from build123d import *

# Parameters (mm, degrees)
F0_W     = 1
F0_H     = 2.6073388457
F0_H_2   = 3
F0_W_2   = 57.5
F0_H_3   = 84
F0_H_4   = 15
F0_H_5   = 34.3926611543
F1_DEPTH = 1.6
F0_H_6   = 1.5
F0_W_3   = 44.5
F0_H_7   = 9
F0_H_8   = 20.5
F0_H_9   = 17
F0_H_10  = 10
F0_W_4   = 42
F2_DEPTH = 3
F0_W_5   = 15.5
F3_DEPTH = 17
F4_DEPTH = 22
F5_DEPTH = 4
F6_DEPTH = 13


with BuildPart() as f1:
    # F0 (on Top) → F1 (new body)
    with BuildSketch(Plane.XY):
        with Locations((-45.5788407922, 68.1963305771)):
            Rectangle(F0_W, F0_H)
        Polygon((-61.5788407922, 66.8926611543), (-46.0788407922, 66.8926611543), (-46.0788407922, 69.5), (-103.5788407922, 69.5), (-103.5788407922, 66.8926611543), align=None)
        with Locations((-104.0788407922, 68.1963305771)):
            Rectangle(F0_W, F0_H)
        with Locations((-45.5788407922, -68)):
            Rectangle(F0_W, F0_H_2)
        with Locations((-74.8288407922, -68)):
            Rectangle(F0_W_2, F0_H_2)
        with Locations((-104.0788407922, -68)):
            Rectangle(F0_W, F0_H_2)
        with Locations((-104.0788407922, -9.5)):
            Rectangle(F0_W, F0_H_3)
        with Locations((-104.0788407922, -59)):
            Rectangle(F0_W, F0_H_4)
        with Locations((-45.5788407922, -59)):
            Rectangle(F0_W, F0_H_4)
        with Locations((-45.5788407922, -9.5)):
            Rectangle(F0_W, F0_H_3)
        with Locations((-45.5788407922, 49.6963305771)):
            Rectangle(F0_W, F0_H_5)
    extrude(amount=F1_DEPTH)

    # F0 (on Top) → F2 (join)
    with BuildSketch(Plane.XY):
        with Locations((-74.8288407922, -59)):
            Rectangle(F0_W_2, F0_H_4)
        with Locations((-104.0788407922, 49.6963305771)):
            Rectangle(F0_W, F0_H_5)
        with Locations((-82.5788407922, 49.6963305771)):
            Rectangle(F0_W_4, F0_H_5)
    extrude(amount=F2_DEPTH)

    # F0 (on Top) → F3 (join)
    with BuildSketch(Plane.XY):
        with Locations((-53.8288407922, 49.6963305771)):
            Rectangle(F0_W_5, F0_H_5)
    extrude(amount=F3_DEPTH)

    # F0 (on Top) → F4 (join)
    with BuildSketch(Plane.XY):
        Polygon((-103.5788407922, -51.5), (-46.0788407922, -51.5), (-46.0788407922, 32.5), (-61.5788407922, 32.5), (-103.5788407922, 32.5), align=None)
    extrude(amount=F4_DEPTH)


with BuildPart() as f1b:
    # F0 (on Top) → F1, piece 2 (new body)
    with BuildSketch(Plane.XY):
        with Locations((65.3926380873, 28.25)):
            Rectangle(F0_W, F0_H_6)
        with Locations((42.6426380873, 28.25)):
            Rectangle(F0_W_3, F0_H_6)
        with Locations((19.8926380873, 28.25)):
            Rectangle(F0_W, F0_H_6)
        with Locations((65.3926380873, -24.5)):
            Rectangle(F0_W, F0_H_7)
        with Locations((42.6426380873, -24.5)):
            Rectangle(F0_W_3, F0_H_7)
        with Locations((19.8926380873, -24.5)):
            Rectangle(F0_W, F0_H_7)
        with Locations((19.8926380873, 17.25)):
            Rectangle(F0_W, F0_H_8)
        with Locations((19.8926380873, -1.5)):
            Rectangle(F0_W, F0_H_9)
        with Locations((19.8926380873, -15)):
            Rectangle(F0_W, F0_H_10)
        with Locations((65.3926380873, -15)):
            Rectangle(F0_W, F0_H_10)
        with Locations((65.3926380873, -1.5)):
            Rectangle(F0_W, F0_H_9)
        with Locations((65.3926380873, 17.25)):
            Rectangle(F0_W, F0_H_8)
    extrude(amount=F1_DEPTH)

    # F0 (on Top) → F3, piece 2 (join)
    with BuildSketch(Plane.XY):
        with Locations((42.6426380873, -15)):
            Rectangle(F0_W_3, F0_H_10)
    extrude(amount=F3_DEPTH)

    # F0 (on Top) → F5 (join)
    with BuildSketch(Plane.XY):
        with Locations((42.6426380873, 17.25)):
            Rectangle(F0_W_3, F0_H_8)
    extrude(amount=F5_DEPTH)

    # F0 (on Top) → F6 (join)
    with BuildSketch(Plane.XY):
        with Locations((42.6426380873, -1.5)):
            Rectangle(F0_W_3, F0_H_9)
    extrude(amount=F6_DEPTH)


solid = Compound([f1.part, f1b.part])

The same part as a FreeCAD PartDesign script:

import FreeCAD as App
import Part
import Sketcher


def add_polygon(sketch, points):
    """Adds a closed chain of lines whose ends are joined by coincident constraints."""
    first, n = sketch.GeometryCount, len(points)
    for a, b in zip(points, points[1:] + points[:1]):
        sketch.addGeometry(Part.LineSegment(App.Vector(*a, 0), App.Vector(*b, 0)), False)
    for i in range(n):
        sketch.addConstraint(Sketcher.Constraint("Coincident", first + i, 2, first + (i + 1) % n, 1))

doc = App.newDocument("Part")
params = doc.addObject("Spreadsheet::Sheet", "Params")
for row, (alias, value) in enumerate([
    ("sketch1_width", "1 mm"),
    ("sketch1_height", "139 mm"),
    ("sketch1_height2", "99 mm"),
    ("sketch1_height3", "102 mm"),
    ("sketch1_width2", "59.5 mm"),
    ("pad1_length", "1.6 mm"),
    ("sketch2_width", "43 mm"),
    ("sketch2_height", "15 mm"),
    ("sketch2_width2", "57.5 mm"),
    ("pad2_length", "3 mm"),
    ("sketch3_width", "15.5 mm"),
    ("pad3_length", "17 mm"),
    ("sketch4_height", "84 mm"),
    ("sketch4_width", "57.5 mm"),
    ("pad4_length", "22 mm"),
    ("sketch5_height", "58 mm"),
    ("sketch5_width", "46.5 mm"),
    ("sketch5_width2", "44.5 mm"),
    ("sketch5_height2", "47.5 mm"),
    ("pad5_length", "1.6 mm"),
    ("sketch6_height", "10 mm"),
    ("sketch6_width", "44.5 mm"),
    ("pad6_length", "17 mm"),
    ("sketch7_width", "44.5 mm"),
    ("sketch7_height", "20.5 mm"),
    ("pad7_length", "4 mm"),
    ("sketch8_height", "17 mm"),
    ("sketch8_width", "44.5 mm"),
    ("pad8_length", "13 mm"),
], start=1):
    params.set(f"A{row}", alias)
    params.set(f"B{row}", "=" + value)
    params.setAlias(f"B{row}", alias)

body = doc.addObject("PartDesign::Body", "Body")

sketch1 = body.newObject("Sketcher::SketchObject", "Sketch")
sketch1.AttachmentSupport = (doc.getObject("XY_Plane"), [""])
sketch1.MapMode = "FlatFace"
add_polygon(sketch1, [(-45.1, -69.5), (-45.1, 69.5), (-104.6, 69.5), (-104.6, 66.9), (-103.6, 66.9), (-46.1, 66.9), (-46.1, -66.5), (-103.6, -66.5), (-103.6, 32.5), (-104.6, 32.5), (-104.6, -69.5)])
sketch1.addConstraint([
    Sketcher.Constraint("Vertical", 0),
    Sketcher.Constraint("Horizontal", 1),
    Sketcher.Constraint("Vertical", 2),
    Sketcher.Constraint("Horizontal", 3),
    Sketcher.Constraint("Horizontal", 4),
    Sketcher.Constraint("Vertical", 5),
    Sketcher.Constraint("Horizontal", 6),
    Sketcher.Constraint("Vertical", 7),
    Sketcher.Constraint("Horizontal", 8),
    Sketcher.Constraint("Vertical", 9),
    Sketcher.Constraint("Horizontal", 10),
    Sketcher.Constraint("Symmetric", 1, 2, 9, 2, -1),
    Sketcher.Constraint("Vertical", 3, 2, 6, 2),
    Sketcher.Constraint("DistanceX", 3, 1, 3, 2, 1.0),
    Sketcher.Constraint("DistanceY", 0, 1, 0, 2, 139.0),
    Sketcher.Constraint("DistanceY", 7, 1, 7, 2, 99.0),
    Sketcher.Constraint("DistanceY", 9, 2, 9, 1, 102.0),
    Sketcher.Constraint("DistanceX", 1, 2, 1, 1, 59.5),
    Sketcher.Constraint("DistanceX", 4, 1, 4, 2, 57.5),
    Sketcher.Constraint("DistanceY", 2, 2, 2, 1, 2.607339),
    Sketcher.Constraint("DistanceX", 0, 2, -1, 1, 45.078841),
])
sketch1.setExpression("Constraints[24]", "Params.sketch1_width")
sketch1.setExpression("Constraints[25]", "Params.sketch1_height")
sketch1.setExpression("Constraints[26]", "Params.sketch1_height2")
sketch1.setExpression("Constraints[27]", "Params.sketch1_height3")
sketch1.setExpression("Constraints[28]", "Params.sketch1_width2")
pad1 = body.newObject("PartDesign::Pad", "Pad")
pad1.Profile = sketch1
pad1.setExpression("Length", "Params.pad1_length")

sketch2 = body.newObject("Sketcher::SketchObject", "Sketch001")
sketch2.AttachmentSupport = (doc.getObject("XY_Plane"), [""])
sketch2.MapMode = "FlatFace"
add_polygon(sketch2, [(-104, -52), (-104, -66), (-46, -66), (-46, -52)])
add_polygon(sketch2, [(-105, 67), (-105, 32), (-62, 32), (-62, 67)])
sketch2.addConstraint([
    Sketcher.Constraint("Vertical", 0),
    Sketcher.Constraint("Horizontal", 1),
    Sketcher.Constraint("Vertical", 2),
    Sketcher.Constraint("Horizontal", 3),
    Sketcher.Constraint("Vertical", 4),
    Sketcher.Constraint("Horizontal", 5),
    Sketcher.Constraint("Vertical", 6),
    Sketcher.Constraint("Horizontal", 7),
    Sketcher.Constraint("DistanceX", 5, 1, 5, 2, 43.0),
    Sketcher.Constraint("DistanceY", 0, 2, 0, 1, 15.0),
    Sketcher.Constraint("DistanceX", 1, 1, 1, 2, 57.5),
    Sketcher.Constraint("DistanceX", 4, 2, 3, 2, 1.0),
    Sketcher.Constraint("DistanceY", 3, 2, 4, 2, 84.0),
    Sketcher.Constraint("DistanceY", 0, 2, -1, 1, 66.5),
    Sketcher.Constraint("DistanceY", 4, 2, 4, 1, 34.392661),
    Sketcher.Constraint("DistanceX", 0, 2, -1, 1, 103.578841),
])
sketch2.setExpression("Constraints[16]", "Params.sketch2_width")
sketch2.setExpression("Constraints[17]", "Params.sketch2_height")
sketch2.setExpression("Constraints[18]", "Params.sketch2_width2")
pad2 = body.newObject("PartDesign::Pad", "Pad001")
pad2.Profile = sketch2
pad2.setExpression("Length", "Params.pad2_length")

sketch3 = body.newObject("Sketcher::SketchObject", "Sketch002")
sketch3.AttachmentSupport = (doc.getObject("XY_Plane"), [""])
sketch3.MapMode = "FlatFace"
add_polygon(sketch3, [(-62, 67), (-62, 32), (-46, 32), (-46, 67)])
sketch3.addConstraint([
    Sketcher.Constraint("Vertical", 0),
    Sketcher.Constraint("Horizontal", 1),
    Sketcher.Constraint("Vertical", 2),
    Sketcher.Constraint("Horizontal", 3),
    Sketcher.Constraint("DistanceX", 1, 1, 1, 2, 15.5),
    Sketcher.Constraint("DistanceY", -1, 1, 0, 2, 32.5),
    Sketcher.Constraint("DistanceY", 0, 2, 0, 1, 34.392661),
    Sketcher.Constraint("DistanceX", 0, 2, -1, 1, 61.578841),
])
sketch3.setExpression("Constraints[8]", "Params.sketch3_width")
pad3 = body.newObject("PartDesign::Pad", "Pad002")
pad3.Profile = sketch3
pad3.setExpression("Length", "Params.pad3_length")

sketch4 = body.newObject("Sketcher::SketchObject", "Sketch003")
sketch4.AttachmentSupport = (doc.getObject("XY_Plane"), [""])
sketch4.MapMode = "FlatFace"
add_polygon(sketch4, [(-104, -52), (-46, -52), (-46, 32), (-104, 32)])
sketch4.addConstraint([
    Sketcher.Constraint("Horizontal", 0),
    Sketcher.Constraint("Vertical", 1),
    Sketcher.Constraint("Horizontal", 2),
    Sketcher.Constraint("Vertical", 3),
    Sketcher.Constraint("DistanceY", 1, 1, 1, 2, 84.0),
    Sketcher.Constraint("DistanceX", 0, 1, 0, 2, 57.5),
    Sketcher.Constraint("DistanceY", 0, 2, -1, 1, 51.5),
    Sketcher.Constraint("DistanceX", 0, 2, -1, 1, 46.078841),
])
sketch4.setExpression("Constraints[8]", "Params.sketch4_height")
sketch4.setExpression("Constraints[9]", "Params.sketch4_width")
pad4 = body.newObject("PartDesign::Pad", "Pad003")
pad4.Profile = sketch4
pad4.setExpression("Length", "Params.pad4_length")
body2 = doc.addObject("PartDesign::Body", "Body001")

sketch5 = body2.newObject("Sketcher::SketchObject", "Sketch004")
sketch5.AttachmentSupport = (doc.getObject("XY_Plane001"), [""])
sketch5.MapMode = "FlatFace"
add_polygon(sketch5, [(66, 29), (19, 29), (19, -29), (66, -29)])
add_polygon(sketch5, [(65, -20), (20, -20), (20, 28), (65, 28)])
sketch5.addConstraint([
    Sketcher.Constraint("Horizontal", 0),
    Sketcher.Constraint("Vertical", 1),
    Sketcher.Constraint("Horizontal", 2),
    Sketcher.Constraint("Vertical", 3),
    Sketcher.Constraint("Horizontal", 4),
    Sketcher.Constraint("Vertical", 5),
    Sketcher.Constraint("Horizontal", 6),
    Sketcher.Constraint("Vertical", 7),
    Sketcher.Constraint("DistanceY", 1, 2, 1, 1, 58.0),
    Sketcher.Constraint("DistanceX", 0, 2, 0, 1, 46.5),
    Sketcher.Constraint("DistanceX", 4, 2, 4, 1, 44.5),
    Sketcher.Constraint("DistanceY", 5, 1, 5, 2, 47.5),
    Sketcher.Constraint("DistanceY", -1, 1, 0, 2, 29.0),
    Sketcher.Constraint("DistanceY", 4, 2, -1, 1, 20.0),
    Sketcher.Constraint("DistanceX", 1, 2, 4, 2, 1.0),
    Sketcher.Constraint("DistanceX", -1, 1, 0, 2, 19.392638),
])
sketch5.setExpression("Constraints[16]", "Params.sketch5_height")
sketch5.setExpression("Constraints[17]", "Params.sketch5_width")
sketch5.setExpression("Constraints[18]", "Params.sketch5_width2")
sketch5.setExpression("Constraints[19]", "Params.sketch5_height2")
pad5 = body2.newObject("PartDesign::Pad", "Pad004")
pad5.Profile = sketch5
pad5.setExpression("Length", "Params.pad5_length")

sketch6 = body2.newObject("Sketcher::SketchObject", "Sketch005")
sketch6.AttachmentSupport = (doc.getObject("XY_Plane001"), [""])
sketch6.MapMode = "FlatFace"
add_polygon(sketch6, [(20, -10), (20, -20), (65, -20), (65, -10)])
sketch6.addConstraint([
    Sketcher.Constraint("Vertical", 0),
    Sketcher.Constraint("Horizontal", 1),
    Sketcher.Constraint("Vertical", 2),
    Sketcher.Constraint("Horizontal", 3),
    Sketcher.Constraint("DistanceY", 0, 2, 0, 1, 10.0),
    Sketcher.Constraint("DistanceX", 1, 1, 1, 2, 44.5),
    Sketcher.Constraint("DistanceY", 0, 2, -1, 1, 20.0),
    Sketcher.Constraint("DistanceX", -1, 1, 0, 2, 20.392638),
])
sketch6.setExpression("Constraints[8]", "Params.sketch6_height")
sketch6.setExpression("Constraints[9]", "Params.sketch6_width")
pad6 = body2.newObject("PartDesign::Pad", "Pad005")
pad6.Profile = sketch6
pad6.setExpression("Length", "Params.pad6_length")

sketch7 = body2.newObject("Sketcher::SketchObject", "Sketch006")
sketch7.AttachmentSupport = (doc.getObject("XY_Plane001"), [""])
sketch7.MapMode = "FlatFace"
add_polygon(sketch7, [(20, 28), (20, 7), (65, 7), (65, 28)])
sketch7.addConstraint([
    Sketcher.Constraint("Vertical", 0),
    Sketcher.Constraint("Horizontal", 1),
    Sketcher.Constraint("Vertical", 2),
    Sketcher.Constraint("Horizontal", 3),
    Sketcher.Constraint("DistanceX", 1, 1, 1, 2, 44.5),
    Sketcher.Constraint("DistanceY", 0, 2, 0, 1, 20.5),
    Sketcher.Constraint("DistanceY", -1, 1, 0, 2, 7.0),
    Sketcher.Constraint("DistanceX", -1, 1, 0, 2, 20.392638),
])
sketch7.setExpression("Constraints[8]", "Params.sketch7_width")
sketch7.setExpression("Constraints[9]", "Params.sketch7_height")
pad7 = body2.newObject("PartDesign::Pad", "Pad006")
pad7.Profile = sketch7
pad7.setExpression("Length", "Params.pad7_length")

sketch8 = body2.newObject("Sketcher::SketchObject", "Sketch007")
sketch8.AttachmentSupport = (doc.getObject("XY_Plane001"), [""])
sketch8.MapMode = "FlatFace"
add_polygon(sketch8, [(20, 7), (20, -10), (65, -10), (65, 7)])
sketch8.addConstraint([
    Sketcher.Constraint("Vertical", 0),
    Sketcher.Constraint("Horizontal", 1),
    Sketcher.Constraint("Vertical", 2),
    Sketcher.Constraint("Horizontal", 3),
    Sketcher.Constraint("DistanceY", 0, 2, 0, 1, 17.0),
    Sketcher.Constraint("DistanceX", 1, 1, 1, 2, 44.5),
    Sketcher.Constraint("DistanceY", 0, 2, -1, 1, 10.0),
    Sketcher.Constraint("DistanceX", -1, 1, 0, 2, 20.392638),
])
sketch8.setExpression("Constraints[8]", "Params.sketch8_height")
sketch8.setExpression("Constraints[9]", "Params.sketch8_width")
pad8 = body2.newObject("PartDesign::Pad", "Pad007")
pad8.Profile = sketch8
pad8.setExpression("Length", "Params.pad8_length")

doc.recompute()
